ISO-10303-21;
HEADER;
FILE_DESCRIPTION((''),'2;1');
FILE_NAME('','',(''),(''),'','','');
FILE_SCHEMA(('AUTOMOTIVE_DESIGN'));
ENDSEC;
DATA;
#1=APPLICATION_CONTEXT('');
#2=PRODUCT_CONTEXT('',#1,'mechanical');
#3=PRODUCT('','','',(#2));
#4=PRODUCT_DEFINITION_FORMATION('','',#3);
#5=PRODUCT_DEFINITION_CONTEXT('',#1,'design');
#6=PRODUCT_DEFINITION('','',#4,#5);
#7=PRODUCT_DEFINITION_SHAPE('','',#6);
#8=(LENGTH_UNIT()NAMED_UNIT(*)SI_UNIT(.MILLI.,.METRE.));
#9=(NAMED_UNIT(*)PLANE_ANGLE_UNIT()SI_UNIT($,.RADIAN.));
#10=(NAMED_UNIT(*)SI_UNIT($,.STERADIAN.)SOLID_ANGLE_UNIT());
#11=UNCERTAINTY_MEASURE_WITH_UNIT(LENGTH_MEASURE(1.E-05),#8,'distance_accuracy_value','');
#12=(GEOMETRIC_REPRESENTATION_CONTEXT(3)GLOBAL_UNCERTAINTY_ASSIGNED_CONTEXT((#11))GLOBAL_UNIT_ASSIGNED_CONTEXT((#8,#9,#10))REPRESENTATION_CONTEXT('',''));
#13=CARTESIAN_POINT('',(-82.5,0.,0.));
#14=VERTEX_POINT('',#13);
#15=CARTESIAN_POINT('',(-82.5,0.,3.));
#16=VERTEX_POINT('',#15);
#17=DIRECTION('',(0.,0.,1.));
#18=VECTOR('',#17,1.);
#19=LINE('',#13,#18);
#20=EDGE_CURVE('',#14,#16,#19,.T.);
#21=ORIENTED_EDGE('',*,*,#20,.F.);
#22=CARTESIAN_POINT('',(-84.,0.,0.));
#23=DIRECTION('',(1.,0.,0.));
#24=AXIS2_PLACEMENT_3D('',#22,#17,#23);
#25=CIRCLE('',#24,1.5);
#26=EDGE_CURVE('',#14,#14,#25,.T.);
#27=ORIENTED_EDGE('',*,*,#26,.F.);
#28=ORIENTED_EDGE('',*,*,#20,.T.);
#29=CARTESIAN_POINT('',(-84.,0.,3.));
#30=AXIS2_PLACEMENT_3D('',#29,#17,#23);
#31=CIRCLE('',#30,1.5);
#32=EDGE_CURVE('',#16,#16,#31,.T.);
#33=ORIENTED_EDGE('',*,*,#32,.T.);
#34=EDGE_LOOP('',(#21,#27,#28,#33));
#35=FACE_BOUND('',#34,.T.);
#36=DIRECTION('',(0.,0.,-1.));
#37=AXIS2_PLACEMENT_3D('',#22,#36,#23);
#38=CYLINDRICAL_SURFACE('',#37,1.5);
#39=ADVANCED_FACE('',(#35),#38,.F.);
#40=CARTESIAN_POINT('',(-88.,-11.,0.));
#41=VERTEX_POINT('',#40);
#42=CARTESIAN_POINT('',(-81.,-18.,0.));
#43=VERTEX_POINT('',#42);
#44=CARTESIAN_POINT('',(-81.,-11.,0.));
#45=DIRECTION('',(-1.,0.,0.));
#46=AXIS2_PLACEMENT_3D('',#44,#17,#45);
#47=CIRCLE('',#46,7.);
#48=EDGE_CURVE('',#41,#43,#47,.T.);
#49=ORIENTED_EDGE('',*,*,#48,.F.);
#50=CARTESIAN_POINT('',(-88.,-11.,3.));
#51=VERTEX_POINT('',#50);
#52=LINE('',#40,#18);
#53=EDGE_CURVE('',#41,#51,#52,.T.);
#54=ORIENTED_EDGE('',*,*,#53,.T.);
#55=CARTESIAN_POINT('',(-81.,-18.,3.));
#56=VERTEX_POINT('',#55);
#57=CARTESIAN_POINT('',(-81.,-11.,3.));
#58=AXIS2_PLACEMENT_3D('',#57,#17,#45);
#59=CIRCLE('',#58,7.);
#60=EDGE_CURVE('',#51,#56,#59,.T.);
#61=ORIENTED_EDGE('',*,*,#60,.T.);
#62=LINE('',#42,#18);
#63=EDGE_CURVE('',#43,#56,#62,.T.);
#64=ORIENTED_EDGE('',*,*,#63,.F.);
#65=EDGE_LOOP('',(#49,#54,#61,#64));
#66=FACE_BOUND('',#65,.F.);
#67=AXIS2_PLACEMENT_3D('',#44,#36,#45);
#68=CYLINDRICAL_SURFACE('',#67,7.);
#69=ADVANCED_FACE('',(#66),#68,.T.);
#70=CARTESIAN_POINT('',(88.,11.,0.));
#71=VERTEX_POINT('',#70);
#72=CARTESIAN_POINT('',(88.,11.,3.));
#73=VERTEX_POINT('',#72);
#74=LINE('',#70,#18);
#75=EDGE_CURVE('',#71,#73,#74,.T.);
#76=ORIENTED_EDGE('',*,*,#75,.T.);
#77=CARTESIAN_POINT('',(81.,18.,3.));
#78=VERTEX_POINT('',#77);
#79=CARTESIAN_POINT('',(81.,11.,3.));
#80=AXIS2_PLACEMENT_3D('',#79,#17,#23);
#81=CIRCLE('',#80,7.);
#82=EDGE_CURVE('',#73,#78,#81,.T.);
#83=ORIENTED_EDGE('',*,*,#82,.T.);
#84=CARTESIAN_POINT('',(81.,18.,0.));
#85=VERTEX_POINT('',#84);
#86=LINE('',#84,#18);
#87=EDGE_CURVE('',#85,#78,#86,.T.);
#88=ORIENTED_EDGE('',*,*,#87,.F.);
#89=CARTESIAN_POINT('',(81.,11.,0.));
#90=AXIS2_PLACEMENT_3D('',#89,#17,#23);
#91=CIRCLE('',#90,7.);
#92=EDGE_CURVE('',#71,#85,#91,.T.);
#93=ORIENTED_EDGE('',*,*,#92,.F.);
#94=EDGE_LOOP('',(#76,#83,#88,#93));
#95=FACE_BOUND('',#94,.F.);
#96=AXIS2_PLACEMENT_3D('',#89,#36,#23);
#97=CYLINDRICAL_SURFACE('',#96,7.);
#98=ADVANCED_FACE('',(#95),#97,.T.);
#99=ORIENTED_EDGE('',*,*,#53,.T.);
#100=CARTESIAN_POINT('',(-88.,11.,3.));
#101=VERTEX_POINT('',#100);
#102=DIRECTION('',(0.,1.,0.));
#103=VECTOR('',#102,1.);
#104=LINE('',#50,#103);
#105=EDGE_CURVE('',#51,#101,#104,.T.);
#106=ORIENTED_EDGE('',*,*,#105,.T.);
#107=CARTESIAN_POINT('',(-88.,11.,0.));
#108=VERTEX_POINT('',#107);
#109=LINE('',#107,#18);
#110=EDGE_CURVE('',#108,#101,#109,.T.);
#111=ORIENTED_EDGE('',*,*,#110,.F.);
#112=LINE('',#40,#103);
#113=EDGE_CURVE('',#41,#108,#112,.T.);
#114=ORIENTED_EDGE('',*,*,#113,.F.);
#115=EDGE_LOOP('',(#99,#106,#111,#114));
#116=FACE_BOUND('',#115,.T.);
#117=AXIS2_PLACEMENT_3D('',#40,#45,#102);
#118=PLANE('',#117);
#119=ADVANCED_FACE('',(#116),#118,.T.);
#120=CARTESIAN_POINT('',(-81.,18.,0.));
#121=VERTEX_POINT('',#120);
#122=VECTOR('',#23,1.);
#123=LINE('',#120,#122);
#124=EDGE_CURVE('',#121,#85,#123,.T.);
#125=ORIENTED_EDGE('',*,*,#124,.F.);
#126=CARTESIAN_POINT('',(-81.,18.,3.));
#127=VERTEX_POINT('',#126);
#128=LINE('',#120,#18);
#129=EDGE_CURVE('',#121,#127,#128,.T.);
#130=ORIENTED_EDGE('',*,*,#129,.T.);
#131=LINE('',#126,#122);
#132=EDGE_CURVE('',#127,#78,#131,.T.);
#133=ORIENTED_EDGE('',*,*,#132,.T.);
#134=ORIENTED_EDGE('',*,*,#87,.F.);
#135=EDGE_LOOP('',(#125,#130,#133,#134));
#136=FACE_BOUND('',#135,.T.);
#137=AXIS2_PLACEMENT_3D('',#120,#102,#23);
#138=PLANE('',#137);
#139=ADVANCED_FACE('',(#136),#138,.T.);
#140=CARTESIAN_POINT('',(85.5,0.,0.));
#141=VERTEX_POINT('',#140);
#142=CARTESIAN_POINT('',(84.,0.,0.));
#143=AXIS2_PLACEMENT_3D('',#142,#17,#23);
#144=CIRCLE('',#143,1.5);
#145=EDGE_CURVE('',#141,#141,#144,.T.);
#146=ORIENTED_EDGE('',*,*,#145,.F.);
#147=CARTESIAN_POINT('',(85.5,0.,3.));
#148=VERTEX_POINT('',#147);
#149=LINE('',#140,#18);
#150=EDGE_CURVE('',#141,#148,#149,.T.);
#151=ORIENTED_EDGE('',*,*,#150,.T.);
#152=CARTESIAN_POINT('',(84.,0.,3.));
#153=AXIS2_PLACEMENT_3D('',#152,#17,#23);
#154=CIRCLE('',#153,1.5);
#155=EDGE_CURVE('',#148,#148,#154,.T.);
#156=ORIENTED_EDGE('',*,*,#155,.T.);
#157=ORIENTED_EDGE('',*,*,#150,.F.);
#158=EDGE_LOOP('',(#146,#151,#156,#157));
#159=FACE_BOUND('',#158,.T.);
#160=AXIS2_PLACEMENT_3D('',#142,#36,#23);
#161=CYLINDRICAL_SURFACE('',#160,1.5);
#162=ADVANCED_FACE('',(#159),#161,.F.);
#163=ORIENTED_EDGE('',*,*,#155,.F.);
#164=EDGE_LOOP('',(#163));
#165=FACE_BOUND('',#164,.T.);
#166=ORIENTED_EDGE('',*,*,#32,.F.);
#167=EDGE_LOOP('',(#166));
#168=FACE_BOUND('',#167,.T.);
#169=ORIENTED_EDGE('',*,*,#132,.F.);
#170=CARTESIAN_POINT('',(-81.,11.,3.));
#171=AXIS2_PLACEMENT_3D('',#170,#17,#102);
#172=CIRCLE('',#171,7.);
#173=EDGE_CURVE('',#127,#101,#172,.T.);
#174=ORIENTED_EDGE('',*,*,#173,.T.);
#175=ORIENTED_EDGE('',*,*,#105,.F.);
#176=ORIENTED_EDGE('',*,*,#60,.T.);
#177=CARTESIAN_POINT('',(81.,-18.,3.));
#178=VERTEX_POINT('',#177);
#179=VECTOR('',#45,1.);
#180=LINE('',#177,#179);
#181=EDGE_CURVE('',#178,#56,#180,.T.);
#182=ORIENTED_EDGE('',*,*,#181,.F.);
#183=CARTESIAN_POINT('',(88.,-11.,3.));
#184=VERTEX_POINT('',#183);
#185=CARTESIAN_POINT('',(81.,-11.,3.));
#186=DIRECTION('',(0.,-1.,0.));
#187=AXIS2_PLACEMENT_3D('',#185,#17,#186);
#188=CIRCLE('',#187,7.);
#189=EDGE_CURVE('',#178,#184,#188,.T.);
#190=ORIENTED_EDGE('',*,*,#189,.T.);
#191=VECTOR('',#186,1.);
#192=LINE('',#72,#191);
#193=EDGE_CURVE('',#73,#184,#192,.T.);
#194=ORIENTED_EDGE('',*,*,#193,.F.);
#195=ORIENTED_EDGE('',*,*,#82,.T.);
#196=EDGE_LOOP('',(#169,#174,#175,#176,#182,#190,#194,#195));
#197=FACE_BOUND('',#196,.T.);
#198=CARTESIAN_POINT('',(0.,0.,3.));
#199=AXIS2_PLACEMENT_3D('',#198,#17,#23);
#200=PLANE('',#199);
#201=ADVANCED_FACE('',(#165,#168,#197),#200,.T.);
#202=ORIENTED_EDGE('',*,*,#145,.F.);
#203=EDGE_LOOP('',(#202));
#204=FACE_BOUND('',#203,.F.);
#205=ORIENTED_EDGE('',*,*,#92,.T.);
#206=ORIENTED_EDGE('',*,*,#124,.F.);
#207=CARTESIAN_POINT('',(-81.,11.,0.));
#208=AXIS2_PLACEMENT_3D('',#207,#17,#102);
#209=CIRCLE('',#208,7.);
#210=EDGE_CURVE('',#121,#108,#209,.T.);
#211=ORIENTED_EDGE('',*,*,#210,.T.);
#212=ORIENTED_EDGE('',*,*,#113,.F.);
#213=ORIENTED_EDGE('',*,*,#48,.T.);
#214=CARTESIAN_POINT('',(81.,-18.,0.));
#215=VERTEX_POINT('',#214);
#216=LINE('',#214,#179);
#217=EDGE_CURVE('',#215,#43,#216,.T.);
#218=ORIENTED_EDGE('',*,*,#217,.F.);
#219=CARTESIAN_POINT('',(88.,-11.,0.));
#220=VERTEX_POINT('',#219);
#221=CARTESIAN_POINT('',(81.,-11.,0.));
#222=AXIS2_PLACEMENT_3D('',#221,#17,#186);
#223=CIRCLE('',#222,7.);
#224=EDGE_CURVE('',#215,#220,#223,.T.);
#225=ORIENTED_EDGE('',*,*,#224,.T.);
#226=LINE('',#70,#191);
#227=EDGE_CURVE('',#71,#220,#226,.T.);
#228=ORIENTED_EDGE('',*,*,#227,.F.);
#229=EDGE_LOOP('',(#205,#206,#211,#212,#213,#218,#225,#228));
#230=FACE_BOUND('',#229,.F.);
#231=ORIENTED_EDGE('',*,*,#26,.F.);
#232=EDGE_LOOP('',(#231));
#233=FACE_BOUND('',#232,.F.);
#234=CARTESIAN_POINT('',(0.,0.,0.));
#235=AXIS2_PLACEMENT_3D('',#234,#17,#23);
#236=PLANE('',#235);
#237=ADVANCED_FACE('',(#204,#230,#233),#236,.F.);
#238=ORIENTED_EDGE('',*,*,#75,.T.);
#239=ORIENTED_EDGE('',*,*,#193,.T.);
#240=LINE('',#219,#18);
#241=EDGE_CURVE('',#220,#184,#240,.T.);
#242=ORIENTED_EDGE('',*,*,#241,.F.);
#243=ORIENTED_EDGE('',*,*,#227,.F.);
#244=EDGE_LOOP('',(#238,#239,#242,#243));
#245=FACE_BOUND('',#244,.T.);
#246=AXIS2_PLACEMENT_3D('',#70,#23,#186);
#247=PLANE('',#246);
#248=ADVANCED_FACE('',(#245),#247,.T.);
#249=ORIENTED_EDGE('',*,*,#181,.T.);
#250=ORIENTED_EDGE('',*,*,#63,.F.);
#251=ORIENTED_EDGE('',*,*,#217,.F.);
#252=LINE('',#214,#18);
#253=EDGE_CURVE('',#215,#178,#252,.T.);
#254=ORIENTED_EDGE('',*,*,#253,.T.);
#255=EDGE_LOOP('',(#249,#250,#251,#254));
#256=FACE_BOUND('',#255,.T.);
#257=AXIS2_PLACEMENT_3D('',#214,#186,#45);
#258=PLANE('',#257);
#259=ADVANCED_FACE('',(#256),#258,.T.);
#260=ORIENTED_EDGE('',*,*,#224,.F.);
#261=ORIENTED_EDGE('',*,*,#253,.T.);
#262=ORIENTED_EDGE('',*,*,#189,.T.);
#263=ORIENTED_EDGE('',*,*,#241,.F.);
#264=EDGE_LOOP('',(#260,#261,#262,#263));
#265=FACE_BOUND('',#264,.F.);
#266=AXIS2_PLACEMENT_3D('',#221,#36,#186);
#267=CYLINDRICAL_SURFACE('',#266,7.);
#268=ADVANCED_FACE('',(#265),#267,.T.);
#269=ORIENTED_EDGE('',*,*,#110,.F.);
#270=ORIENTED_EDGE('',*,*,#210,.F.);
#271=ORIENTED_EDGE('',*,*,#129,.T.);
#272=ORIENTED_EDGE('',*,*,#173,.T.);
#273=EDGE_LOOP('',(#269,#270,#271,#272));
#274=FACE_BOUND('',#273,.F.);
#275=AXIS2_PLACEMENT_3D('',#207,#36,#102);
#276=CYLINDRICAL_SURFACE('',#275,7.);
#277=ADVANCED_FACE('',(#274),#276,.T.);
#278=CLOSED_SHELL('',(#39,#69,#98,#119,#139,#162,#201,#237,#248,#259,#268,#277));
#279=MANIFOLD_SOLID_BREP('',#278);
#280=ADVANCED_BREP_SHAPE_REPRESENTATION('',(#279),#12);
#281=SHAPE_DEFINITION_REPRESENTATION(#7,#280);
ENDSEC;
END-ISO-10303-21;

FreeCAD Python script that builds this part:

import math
import FreeCAD as App
import Part
import Sketcher

V = App.Vector

doc = App.newDocument("Part")
body = doc.addObject("PartDesign::Body", "Body")

# Sketch on XY plane
sketch1 = body.newObject("Sketcher::SketchObject", "Sketch")
sketch1.AttachmentSupport = (doc.getObject("XY_Plane"), [""])
sketch1.MapMode = "FlatFace"
sketch1.addGeometry([
    Part.LineSegment(V(81, 18, 0), V(-81, 18, 0)),  # 0
    Part.ArcOfCircle(Part.Circle(V(-81, 11, 0), V(0, 0, 1), 7), math.radians(90), math.radians(180)),  # 1
    Part.LineSegment(V(-88, 11, 0), V(-88, -11, 0)),  # 2
    Part.ArcOfCircle(Part.Circle(V(-81, -11, 0), V(0, 0, 1), 7), math.radians(180), math.radians(270)),  # 3
    Part.LineSegment(V(-81, -18, 0), V(81, -18, 0)),  # 4
    Part.ArcOfCircle(Part.Circle(V(81, -11, 0), V(0, 0, 1), 7), math.radians(-90), math.radians(0)),  # 5
    Part.LineSegment(V(88, -11, 0), V(88, 11, 0)),  # 6
    Part.ArcOfCircle(Part.Circle(V(81, 11, 0), V(0, 0, 1), 7), math.radians(0), math.radians(90)),  # 7
    Part.Circle(V(-84, 0, 0), V(0, 0, 1), 1.5),  # 8
    Part.Circle(V(84, 0, 0), V(0, 0, 1), 1.5),  # 9
], False)
sketch1.addConstraint([
    Sketcher.Constraint("Tangent", 0, 2, 1, 1),
    Sketcher.Constraint("Tangent", 1, 2, 2, 1),
    Sketcher.Constraint("Tangent", 2, 2, 3, 1),
    Sketcher.Constraint("Tangent", 3, 2, 4, 1),
    Sketcher.Constraint("Tangent", 4, 2, 5, 1),
    Sketcher.Constraint("Tangent", 5, 2, 6, 1),
    Sketcher.Constraint("Tangent", 6, 2, 7, 1),
    Sketcher.Constraint("Tangent", 7, 2, 0, 1),
    Sketcher.Constraint("Horizontal", 0),
    Sketcher.Constraint("Vertical", 2),
    Sketcher.Constraint("Horizontal", 4),
    Sketcher.Constraint("Vertical", 6),
    Sketcher.Constraint("Equal", 1, 3),
    Sketcher.Constraint("Equal", 3, 5),
    Sketcher.Constraint("Equal", 5, 7),
    Sketcher.Constraint("Equal", 8, 9),
    Sketcher.Constraint("Symmetric", 1, 3, 5, 3, -1, 1),
    Sketcher.Constraint("Symmetric", 8, 3, 9, 3, -1, 1),
    Sketcher.Constraint("PointOnObject", 8, 3, -1),
    Sketcher.Constraint("Diameter", 8, 3.0),
    Sketcher.Constraint("Radius", 1, 7.0),
    Sketcher.Constraint("DistanceY", -1, 1, 0, 2, 18.0),
    Sketcher.Constraint("DistanceX", 8, 3, 1, 3, 3.0),
    Sketcher.Constraint("DistanceX", 0, 2, 0, 1, 162.0),
])
pad1 = body.newObject("PartDesign::Pad", "Pad")
pad1.Profile = sketch1
pad1.Length = 3

doc.recompute()
